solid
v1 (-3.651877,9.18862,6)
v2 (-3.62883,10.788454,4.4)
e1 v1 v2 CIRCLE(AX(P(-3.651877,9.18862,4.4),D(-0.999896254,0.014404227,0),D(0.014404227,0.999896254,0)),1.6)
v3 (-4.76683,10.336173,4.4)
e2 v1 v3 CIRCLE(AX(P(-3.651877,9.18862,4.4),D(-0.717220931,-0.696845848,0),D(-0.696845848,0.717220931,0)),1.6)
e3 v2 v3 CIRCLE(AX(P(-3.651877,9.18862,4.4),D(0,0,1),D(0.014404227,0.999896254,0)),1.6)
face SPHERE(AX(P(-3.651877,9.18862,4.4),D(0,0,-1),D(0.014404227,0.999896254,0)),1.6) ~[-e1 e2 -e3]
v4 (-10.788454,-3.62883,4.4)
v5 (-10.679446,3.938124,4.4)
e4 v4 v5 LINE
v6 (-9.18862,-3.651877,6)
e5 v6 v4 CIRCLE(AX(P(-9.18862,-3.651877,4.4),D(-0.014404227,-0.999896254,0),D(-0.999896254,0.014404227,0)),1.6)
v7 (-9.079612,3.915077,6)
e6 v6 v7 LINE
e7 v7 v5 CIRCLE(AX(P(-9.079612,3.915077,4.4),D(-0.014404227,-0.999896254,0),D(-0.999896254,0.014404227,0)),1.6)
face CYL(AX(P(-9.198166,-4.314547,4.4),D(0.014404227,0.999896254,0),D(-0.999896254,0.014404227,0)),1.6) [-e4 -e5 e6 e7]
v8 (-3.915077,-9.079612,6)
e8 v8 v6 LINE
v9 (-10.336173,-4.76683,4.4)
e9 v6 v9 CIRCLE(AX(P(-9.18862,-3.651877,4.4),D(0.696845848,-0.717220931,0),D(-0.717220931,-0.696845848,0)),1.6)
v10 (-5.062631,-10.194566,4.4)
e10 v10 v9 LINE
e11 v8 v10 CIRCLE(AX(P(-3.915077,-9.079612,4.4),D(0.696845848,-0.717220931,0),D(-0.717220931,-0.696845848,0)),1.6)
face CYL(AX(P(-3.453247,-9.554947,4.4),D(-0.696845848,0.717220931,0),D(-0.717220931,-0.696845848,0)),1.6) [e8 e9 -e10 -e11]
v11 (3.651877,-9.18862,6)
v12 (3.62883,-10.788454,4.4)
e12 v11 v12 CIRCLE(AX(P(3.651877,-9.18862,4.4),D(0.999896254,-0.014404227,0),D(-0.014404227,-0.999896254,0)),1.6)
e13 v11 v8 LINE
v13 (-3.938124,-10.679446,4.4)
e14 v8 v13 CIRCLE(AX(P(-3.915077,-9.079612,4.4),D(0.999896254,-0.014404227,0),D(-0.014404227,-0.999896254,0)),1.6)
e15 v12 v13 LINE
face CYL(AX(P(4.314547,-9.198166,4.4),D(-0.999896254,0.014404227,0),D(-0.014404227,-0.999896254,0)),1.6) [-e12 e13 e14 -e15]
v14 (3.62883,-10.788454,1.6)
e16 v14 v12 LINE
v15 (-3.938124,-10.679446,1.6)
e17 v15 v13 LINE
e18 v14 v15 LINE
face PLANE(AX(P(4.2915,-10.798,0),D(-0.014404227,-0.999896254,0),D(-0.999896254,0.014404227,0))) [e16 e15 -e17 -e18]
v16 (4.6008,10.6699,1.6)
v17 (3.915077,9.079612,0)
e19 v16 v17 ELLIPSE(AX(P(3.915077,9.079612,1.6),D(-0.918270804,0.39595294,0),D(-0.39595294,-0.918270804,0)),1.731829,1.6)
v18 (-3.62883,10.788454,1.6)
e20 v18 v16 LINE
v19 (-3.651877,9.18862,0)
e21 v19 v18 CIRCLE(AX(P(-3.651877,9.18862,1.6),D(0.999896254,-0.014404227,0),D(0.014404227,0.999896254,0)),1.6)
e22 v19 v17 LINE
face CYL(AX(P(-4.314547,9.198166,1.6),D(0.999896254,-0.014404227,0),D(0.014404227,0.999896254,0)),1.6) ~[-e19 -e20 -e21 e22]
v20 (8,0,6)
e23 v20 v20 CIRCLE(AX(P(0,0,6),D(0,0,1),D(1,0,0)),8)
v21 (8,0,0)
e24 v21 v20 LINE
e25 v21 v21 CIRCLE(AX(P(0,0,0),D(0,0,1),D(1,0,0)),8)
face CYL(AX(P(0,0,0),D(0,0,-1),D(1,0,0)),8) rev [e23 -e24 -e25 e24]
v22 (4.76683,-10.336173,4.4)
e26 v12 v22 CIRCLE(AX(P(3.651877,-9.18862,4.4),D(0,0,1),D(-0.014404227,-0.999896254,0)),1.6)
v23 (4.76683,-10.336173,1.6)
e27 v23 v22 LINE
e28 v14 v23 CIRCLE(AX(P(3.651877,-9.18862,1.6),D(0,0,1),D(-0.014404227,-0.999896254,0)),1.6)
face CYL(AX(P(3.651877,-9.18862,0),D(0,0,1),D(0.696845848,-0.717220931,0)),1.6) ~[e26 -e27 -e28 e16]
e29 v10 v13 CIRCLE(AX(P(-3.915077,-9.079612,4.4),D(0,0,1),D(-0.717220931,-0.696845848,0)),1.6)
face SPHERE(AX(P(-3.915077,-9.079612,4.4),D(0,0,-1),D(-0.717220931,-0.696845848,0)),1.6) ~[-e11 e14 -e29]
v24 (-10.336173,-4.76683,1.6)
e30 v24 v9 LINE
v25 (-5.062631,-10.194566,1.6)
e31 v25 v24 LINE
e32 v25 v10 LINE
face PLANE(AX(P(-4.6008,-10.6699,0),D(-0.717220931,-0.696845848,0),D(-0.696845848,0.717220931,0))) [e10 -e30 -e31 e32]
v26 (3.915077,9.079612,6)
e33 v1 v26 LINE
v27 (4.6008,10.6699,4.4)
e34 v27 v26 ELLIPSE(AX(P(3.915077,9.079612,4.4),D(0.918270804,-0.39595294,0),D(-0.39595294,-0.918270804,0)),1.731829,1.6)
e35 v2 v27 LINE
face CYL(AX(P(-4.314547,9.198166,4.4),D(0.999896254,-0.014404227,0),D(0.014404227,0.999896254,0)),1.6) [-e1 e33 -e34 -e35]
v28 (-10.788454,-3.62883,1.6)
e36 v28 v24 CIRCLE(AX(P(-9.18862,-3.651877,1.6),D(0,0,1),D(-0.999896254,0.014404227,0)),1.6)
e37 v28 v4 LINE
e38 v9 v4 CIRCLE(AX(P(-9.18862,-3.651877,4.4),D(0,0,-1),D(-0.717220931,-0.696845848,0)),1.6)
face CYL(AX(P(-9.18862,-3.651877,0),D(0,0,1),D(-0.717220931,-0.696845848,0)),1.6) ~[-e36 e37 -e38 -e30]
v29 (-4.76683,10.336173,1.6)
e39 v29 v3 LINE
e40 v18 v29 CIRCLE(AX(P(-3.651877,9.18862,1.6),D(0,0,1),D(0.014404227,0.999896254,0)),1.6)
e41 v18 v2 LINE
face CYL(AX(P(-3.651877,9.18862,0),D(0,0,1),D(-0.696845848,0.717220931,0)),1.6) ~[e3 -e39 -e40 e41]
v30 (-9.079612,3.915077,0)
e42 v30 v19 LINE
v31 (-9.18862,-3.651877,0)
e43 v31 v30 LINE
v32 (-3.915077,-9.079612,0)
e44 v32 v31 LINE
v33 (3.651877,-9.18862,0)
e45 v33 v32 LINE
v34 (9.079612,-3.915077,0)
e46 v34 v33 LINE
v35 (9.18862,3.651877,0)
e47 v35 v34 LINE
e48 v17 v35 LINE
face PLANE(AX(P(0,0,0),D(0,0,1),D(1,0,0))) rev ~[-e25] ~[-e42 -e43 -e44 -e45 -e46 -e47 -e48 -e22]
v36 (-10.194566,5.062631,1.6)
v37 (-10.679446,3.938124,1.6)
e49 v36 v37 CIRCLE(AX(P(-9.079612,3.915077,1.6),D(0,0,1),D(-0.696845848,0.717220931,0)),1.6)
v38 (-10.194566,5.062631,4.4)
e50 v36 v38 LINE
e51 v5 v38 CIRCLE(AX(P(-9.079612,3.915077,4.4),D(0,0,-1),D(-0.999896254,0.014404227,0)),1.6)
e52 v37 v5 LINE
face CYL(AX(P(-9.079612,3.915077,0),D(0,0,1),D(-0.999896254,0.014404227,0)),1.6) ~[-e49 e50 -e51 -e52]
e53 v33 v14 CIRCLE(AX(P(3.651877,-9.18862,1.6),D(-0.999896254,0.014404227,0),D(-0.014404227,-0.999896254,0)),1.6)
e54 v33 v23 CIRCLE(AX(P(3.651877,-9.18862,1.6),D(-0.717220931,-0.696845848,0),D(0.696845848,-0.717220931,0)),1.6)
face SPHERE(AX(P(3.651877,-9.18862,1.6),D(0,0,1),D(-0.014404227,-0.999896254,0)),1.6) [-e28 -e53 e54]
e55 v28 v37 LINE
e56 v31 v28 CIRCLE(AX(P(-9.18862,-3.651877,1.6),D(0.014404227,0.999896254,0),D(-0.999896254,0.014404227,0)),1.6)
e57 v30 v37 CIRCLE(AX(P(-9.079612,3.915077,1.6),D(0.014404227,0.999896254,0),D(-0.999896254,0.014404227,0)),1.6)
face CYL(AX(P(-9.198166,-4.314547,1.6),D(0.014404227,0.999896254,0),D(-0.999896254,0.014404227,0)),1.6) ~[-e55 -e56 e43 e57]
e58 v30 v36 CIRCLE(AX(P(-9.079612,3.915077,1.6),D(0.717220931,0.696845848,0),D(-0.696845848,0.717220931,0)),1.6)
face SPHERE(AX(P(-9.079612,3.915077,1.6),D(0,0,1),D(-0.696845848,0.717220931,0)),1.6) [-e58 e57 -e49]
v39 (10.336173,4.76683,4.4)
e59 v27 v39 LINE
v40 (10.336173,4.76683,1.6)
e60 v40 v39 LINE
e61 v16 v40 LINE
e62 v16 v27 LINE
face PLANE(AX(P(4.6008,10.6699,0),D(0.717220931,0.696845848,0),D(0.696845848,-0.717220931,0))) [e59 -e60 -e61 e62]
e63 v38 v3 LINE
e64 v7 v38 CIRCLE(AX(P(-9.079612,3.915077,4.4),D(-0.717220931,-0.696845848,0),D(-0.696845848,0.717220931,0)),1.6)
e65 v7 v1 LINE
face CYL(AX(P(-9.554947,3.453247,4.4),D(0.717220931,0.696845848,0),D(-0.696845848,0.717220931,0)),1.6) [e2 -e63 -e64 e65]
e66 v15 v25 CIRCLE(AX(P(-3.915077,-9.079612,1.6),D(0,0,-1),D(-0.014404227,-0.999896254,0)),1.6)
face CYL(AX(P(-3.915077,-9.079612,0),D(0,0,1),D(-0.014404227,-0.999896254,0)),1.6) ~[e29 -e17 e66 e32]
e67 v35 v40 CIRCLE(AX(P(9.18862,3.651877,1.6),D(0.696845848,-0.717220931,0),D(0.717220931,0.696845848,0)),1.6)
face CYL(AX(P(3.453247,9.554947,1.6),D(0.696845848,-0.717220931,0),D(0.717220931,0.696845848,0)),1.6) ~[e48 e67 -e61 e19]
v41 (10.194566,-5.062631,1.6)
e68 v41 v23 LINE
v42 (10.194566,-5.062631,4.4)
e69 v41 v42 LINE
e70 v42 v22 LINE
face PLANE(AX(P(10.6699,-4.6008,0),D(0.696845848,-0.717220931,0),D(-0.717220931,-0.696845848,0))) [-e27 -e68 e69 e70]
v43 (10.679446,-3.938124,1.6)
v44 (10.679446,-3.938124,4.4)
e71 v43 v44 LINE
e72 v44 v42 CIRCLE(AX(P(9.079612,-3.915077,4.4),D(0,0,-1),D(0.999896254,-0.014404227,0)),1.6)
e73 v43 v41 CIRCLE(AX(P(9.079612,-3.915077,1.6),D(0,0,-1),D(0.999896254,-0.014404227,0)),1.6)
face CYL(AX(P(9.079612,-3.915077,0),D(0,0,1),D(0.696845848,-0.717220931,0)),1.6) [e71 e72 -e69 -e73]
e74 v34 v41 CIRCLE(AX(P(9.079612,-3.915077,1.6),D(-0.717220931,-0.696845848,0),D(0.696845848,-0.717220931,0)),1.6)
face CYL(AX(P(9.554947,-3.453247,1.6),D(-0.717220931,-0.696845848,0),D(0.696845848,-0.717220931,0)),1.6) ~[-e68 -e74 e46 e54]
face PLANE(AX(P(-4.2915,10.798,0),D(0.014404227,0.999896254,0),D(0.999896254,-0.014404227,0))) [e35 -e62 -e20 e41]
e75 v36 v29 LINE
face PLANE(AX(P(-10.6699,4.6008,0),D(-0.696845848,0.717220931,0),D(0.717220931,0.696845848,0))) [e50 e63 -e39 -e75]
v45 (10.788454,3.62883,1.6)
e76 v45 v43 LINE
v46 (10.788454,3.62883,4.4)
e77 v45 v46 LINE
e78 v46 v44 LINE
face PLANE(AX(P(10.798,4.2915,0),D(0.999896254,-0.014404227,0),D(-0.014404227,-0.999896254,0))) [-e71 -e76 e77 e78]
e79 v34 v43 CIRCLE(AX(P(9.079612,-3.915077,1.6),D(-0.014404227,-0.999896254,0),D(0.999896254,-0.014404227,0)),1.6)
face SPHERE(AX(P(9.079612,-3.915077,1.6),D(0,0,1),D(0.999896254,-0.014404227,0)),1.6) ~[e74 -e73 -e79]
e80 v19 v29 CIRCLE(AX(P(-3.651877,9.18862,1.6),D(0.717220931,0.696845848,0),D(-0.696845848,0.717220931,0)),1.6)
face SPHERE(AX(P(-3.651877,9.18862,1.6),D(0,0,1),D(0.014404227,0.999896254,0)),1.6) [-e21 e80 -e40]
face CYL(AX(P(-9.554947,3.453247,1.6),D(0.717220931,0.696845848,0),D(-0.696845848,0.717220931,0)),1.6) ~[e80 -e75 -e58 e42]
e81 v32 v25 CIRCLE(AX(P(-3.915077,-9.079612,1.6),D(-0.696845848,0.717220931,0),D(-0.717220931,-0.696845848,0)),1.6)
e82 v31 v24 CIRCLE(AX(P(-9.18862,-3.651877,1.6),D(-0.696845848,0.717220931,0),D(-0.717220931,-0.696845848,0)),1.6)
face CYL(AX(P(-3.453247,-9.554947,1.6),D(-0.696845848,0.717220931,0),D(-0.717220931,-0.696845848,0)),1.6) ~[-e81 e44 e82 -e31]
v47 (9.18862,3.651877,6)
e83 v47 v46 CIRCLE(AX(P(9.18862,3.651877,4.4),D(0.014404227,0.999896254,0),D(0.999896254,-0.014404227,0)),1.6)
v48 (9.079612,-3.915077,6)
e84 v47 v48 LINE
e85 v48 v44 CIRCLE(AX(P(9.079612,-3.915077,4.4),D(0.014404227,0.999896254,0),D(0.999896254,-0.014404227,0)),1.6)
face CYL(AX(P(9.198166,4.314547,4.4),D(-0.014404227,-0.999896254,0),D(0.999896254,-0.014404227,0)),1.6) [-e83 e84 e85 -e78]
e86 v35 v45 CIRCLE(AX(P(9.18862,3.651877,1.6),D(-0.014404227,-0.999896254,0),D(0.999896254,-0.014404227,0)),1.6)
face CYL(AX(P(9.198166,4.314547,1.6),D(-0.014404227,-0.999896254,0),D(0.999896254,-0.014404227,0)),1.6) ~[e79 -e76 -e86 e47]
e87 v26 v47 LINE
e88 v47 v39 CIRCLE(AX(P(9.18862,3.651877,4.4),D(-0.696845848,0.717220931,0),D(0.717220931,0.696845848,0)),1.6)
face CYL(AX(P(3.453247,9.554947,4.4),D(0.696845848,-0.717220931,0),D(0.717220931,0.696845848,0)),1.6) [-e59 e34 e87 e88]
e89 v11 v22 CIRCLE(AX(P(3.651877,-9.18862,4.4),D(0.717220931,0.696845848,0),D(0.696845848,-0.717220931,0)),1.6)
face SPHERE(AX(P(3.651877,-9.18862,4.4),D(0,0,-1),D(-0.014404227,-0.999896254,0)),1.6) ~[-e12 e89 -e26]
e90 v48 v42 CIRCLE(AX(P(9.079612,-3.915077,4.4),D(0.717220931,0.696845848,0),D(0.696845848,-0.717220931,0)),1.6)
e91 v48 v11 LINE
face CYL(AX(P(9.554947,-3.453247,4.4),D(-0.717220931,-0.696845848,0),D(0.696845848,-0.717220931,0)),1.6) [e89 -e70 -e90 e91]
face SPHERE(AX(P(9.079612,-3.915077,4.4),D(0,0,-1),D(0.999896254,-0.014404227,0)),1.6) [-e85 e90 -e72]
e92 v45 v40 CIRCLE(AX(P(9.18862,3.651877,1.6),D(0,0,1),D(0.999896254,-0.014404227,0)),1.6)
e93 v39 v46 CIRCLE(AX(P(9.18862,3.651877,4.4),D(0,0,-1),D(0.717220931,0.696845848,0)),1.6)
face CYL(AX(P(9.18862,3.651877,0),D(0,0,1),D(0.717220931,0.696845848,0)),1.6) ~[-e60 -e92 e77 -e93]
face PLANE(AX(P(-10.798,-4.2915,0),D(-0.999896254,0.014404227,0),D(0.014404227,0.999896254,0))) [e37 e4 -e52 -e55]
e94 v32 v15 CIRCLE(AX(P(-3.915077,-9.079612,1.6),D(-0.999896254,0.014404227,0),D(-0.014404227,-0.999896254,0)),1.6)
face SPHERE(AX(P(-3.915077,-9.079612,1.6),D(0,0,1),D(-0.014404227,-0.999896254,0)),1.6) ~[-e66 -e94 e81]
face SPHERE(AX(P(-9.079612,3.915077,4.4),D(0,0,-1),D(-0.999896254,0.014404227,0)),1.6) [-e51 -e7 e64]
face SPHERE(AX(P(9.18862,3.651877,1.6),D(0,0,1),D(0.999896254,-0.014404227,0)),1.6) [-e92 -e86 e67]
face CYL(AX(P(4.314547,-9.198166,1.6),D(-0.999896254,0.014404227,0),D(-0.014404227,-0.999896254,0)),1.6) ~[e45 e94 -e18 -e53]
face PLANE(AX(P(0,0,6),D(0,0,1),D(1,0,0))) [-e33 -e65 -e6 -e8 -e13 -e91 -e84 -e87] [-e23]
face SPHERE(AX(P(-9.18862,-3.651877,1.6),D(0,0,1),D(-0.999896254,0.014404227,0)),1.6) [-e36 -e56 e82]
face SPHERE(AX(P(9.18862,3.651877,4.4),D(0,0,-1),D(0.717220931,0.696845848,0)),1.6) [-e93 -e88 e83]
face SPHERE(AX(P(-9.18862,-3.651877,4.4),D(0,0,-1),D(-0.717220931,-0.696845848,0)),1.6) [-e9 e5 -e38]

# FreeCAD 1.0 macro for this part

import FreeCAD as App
import Part
import Sketcher

V = App.Vector
Q = App.Units.Quantity


def edges_at(feature, points):
    """Names of the edges that pass closest to the given points."""
    edges = feature.Shape.Edges
    near = lambda p: min(range(len(edges)), key=lambda i: edges[i].distToShape(Part.Vertex(*p))[0])
    return sorted({f"Edge{near(p) + 1}" for p in points})


def add_polygon(sketch, points):
    """Adds a closed chain of lines whose ends are joined by coincident constraints."""
    first, n = sketch.GeometryCount, len(points)
    for a, b in zip(points, points[1:] + points[:1]):
        sketch.addGeometry(Part.LineSegment(App.Vector(*a, 0), App.Vector(*b, 0)), False)
    for i in range(n):
        sketch.addConstraint(Sketcher.Constraint("Coincident", first + i, 2, first + (i + 1) % n, 1))

doc = App.newDocument("Part")
body = doc.addObject("PartDesign::Body", "Body")

# Sketch on XY plane
sketch1 = body.newObject("Sketcher::SketchObject", "Sketch")
sketch1.AttachmentSupport = (doc.getObject("XY_Plane"), [""])
sketch1.MapMode = "FlatFace"
add_polygon(sketch1, [(4, -11), (11, -5), (11, 4), (5, 11), (-4, 11), (-11, 5), (-11, -4), (-5, -11)])  # lines 0-7
sketch1.addGeometry(Part.Circle(V(0, 0, 0), V(0, 0, 1), 8), False)  # 8
sketch1.addConstraint(Sketcher.Constraint("Coincident", 8, 3, -1, 1))
sketch1.addConstraint(Sketcher.Constraint("Symmetric", 0, 2, 4, 2, -1, 1))
sketch1.addConstraint(Sketcher.Constraint("Symmetric", 1, 2, 5, 2, -1, 1))
sketch1.addConstraint(Sketcher.Constraint("Symmetric", 2, 2, 6, 2, -1, 1))
sketch1.addConstraint(Sketcher.Constraint("Symmetric", 3, 2, 7, 2, -1, 1))
sketch1.addConstraint(Sketcher.Constraint("Perpendicular", 0, 2))
sketch1.addConstraint(Sketcher.Constraint("Perpendicular", 1, 3))
sketch1.addConstraint(Sketcher.Constraint("Equal", 0, 1))
sketch1.addConstraint(Sketcher.Constraint("Equal", 1, 2))
sketch1.addConstraint(Sketcher.Constraint("Equal", 2, 3))
sketch1.addConstraint(Sketcher.Constraint("Diameter", 8, Q("16 mm")))
sketch1.addConstraint(Sketcher.Constraint("DistanceX", -1, 1, 0, 2, Q("10.67 mm")))
sketch1.addConstraint(Sketcher.Constraint("DistanceX", -1, 1, 1, 2, Q("10.798 mm")))
sketch1.addConstraint(Sketcher.Constraint("DistanceX", 2, 2, 0, 2, Q("6.069 mm")))
pad1 = body.newObject("PartDesign::Pad", "Pad")
pad1.Profile = sketch1
pad1.Length = 6
doc.recompute()

fillet = body.newObject("PartDesign::Fillet", "Fillet")
fillet.Base = (pad1, edges_at(pad1, [
    (7.481, -7.699, 6),
    (10.67, -4.601, 3),
    (10.734, -0.155, 6),
    (10.798, 4.292, 3),
    (4.292, -10.798, 3),
    (-0.155, -10.734, 6),
    (-4.601, -10.67, 3),
    (-0.155, -10.734, 0),
    (10.734, -0.155, 0),
    (7.481, -7.699, 0),
    (7.699, 7.481, 0),
    (0.155, 10.734, 0),
    (-7.481, 7.699, 0),
    (-10.734, 0.155, 0),
    (-7.699, -7.481, 0),
    (-4.292, 10.798, 3),
    (-10.67, 4.601, 3),
    (-10.798, -4.292, 3),
    (7.699, 7.481, 6),
    (0.155, 10.734, 6),
    (-7.699, -7.481, 6),
    (-10.734, 0.155, 6),
    (-7.481, 7.699, 6),
]))
fillet.Radius = 1.6

doc.recompute()
